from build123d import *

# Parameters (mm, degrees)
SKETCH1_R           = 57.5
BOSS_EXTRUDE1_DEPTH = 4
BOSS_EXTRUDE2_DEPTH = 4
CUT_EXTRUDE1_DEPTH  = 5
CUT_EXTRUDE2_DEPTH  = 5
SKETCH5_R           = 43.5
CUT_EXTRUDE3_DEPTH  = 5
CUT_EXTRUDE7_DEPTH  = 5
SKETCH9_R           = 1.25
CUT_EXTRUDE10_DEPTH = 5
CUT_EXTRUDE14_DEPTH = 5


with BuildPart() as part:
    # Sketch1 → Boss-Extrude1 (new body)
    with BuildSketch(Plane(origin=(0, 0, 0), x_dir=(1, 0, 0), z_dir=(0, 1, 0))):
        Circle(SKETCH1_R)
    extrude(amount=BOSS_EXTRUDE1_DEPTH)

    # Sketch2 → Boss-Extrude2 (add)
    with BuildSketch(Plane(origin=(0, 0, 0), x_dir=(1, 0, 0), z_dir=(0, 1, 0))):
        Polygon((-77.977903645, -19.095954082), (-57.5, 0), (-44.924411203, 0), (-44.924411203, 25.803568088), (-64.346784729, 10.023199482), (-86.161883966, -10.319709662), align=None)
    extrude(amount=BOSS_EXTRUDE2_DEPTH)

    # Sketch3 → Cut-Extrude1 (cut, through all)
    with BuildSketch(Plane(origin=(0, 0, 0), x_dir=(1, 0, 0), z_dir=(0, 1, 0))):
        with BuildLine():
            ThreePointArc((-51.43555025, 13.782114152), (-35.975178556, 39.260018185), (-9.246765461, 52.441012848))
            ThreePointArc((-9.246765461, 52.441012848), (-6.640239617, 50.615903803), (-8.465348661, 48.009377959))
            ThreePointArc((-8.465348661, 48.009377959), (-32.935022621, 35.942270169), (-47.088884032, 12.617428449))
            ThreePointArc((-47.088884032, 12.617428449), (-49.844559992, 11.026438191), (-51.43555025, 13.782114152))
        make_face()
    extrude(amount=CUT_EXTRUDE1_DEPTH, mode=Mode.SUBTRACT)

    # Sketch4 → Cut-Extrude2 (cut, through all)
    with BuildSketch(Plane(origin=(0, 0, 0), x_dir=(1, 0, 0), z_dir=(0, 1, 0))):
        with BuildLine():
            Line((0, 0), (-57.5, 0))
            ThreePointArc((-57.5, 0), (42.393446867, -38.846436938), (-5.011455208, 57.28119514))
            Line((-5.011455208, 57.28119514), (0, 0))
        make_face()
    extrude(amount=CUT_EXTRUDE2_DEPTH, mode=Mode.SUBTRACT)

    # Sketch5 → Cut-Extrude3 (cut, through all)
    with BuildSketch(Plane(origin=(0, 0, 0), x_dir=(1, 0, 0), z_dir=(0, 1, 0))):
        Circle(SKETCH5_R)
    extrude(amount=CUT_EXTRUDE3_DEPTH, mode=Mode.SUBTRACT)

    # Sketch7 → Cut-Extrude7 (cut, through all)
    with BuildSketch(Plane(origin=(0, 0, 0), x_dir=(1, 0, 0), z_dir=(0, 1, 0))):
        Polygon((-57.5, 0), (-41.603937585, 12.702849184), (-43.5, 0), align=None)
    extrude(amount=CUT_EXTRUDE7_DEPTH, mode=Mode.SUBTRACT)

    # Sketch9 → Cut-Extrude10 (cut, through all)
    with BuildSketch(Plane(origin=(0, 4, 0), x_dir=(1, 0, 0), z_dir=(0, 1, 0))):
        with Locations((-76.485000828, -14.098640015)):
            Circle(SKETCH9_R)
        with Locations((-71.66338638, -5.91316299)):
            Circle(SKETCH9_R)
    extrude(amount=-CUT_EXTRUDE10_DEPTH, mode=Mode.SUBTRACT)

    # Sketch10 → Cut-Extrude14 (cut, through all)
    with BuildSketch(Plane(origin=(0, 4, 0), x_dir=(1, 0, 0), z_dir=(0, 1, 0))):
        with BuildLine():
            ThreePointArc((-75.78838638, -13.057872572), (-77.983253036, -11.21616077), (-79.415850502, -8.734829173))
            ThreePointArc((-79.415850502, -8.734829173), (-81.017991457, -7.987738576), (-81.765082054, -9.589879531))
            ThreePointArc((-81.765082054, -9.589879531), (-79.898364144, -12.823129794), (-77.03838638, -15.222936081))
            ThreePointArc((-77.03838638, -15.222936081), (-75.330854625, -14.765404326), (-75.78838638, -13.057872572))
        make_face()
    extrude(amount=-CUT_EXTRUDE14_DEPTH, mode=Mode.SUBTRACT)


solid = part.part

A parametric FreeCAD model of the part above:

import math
import FreeCAD as App
import Part
import Sketcher
from FreeCAD import Vector
Q = App.Units.Quantity

doc = App.newDocument("Part")
params = doc.addObject("Spreadsheet::Sheet", "Params")
for row, (alias, value) in enumerate([
    ("sketch1_diameter", "115 mm"),
    ("pad1_length", "4 mm"),
    ("sketch2_length", "28 mm"),
    ("sketch2_length2", "12 mm"),
    ("pad2_length", "4 mm"),
    ("sketch3_radius", "53.25 mm"),
    ("sketch3_radius2", "2.25 mm"),
    ("sketch4_radius", "57.5 mm"),
    ("sketch5_diameter", "87 mm"),
    ("sketch6_width", "14 mm"),
    ("sketch7_diameter", "2.5 mm"),
    ("sketch8_radius", "8.25 mm"),
    ("sketch8_radius2", "1.25 mm"),
], start=1):
    params.set(f"A{row}", alias)
    params.set(f"B{row}", "=" + value)
    params.setAlias(f"B{row}", alias)

body = doc.addObject("PartDesign::Body", "Body")

# Sketch on XZ plane
sketch1 = body.newObject("Sketcher::SketchObject", "Sketch")
sketch1.AttachmentSupport = (doc.getObject("XZ_Plane"), [""])
sketch1.MapMode = "FlatFace"
sketch1.addGeometry(Part.Circle(Vector(0, 0, 0), Vector(0, 0, 1), 57.5), False)
sketch1.addConstraint([
    Sketcher.Constraint("Coincident", 0, 3, -1, 1),
    Sketcher.Constraint("Diameter", 0, Q("115 mm")),
])
sketch1.setExpression("Constraints[1]", "Params.sketch1_diameter")
pad1 = body.newObject("PartDesign::Pad", "Pad")
pad1.Profile = sketch1
pad1.setExpression("Length", "Params.pad1_length")
pad1.Reversed = True

# Sketch on XZ plane
sketch2 = body.newObject("Sketcher::SketchObject", "Sketch001")
sketch2.AttachmentSupport = (doc.getObject("XZ_Plane"), [""])
sketch2.MapMode = "FlatFace"
sketch2.addGeometry([
    Part.LineSegment(Vector(-77.977904, 19.095954, 0), Vector(-57.5, 0, 0)),  # 0
    Part.LineSegment(Vector(-57.5, 0, 0), Vector(-44.924411, 0, 0)),  # 1
    Part.LineSegment(Vector(-44.924411, 0, 0), Vector(-44.924411, -25.803568, 0)),  # 2
    Part.LineSegment(Vector(-44.924411, -25.803568, 0), Vector(-64.346785, -10.023199, 0)),  # 3
    Part.LineSegment(Vector(-64.346785, -10.023199, 0), Vector(-86.161884, 10.31971, 0)),  # 4
    Part.LineSegment(Vector(-86.161884, 10.31971, 0), Vector(-77.977904, 19.095954, 0)),  # 5
], False)
sketch2.addConstraint([
    Sketcher.Constraint("Coincident", 0, 2, 1, 1),
    Sketcher.Constraint("Coincident", 1, 2, 2, 1),
    Sketcher.Constraint("Coincident", 2, 2, 3, 1),
    Sketcher.Constraint("Coincident", 3, 2, 4, 1),
    Sketcher.Constraint("Coincident", 4, 2, 5, 1),
    Sketcher.Constraint("Coincident", 5, 2, 0, 1),
    Sketcher.Constraint("Horizontal", 1),
    Sketcher.Constraint("Vertical", 2),
    Sketcher.Constraint("PointOnObject", 0, 2, -1),
    Sketcher.Constraint("Parallel", 0, 4),
    Sketcher.Constraint("Perpendicular", 4, 5),
    Sketcher.Constraint("Angle", 0, Q("-43 deg")),
    Sketcher.Constraint("Distance", 0, Q("28 mm")),
    Sketcher.Constraint("Distance", 5, Q("12 mm")),
    Sketcher.Constraint("DistanceX", 0, 2, -1, 1, Q("57.5 mm")),
    Sketcher.Constraint("DistanceX", 1, 1, 1, 2, Q("12.575589 mm")),
    Sketcher.Constraint("DistanceY", 2, 2, 2, 1, Q("25.803568 mm")),
    Sketcher.Constraint("DistanceY", 3, 2, -1, 1, Q("10.023199 mm")),
])
sketch2.setExpression("Constraints[12]", "Params.sketch2_length")
sketch2.setExpression("Constraints[13]", "Params.sketch2_length2")
pad2 = body.newObject("PartDesign::Pad", "Pad001")
pad2.Profile = sketch2
pad2.setExpression("Length", "Params.pad2_length")
pad2.Reversed = True

# Sketch on XZ plane
sketch3 = body.newObject("Sketcher::SketchObject", "Sketch002")
sketch3.AttachmentSupport = (doc.getObject("XZ_Plane"), [""])
sketch3.MapMode = "FlatFace"
sketch3.addGeometry([
    Part.ArcOfCircle(Part.Circle(Vector(0, 0, 0), Vector(0, 0, 1), 53.25), math.radians(-165), math.radians(-100)),
    Part.ArcOfCircle(Part.Circle(Vector(-49.262217, -13.199771, 0), Vector(0, 0, 1), 2.25), math.radians(15), math.radians(195)),
    Part.ArcOfCircle(Part.Circle(Vector(0, 0, 0), Vector(0, 0, 1), 48.75), math.radians(-165), math.radians(-100)),
    Part.ArcOfCircle(Part.Circle(Vector(-8.856057, -50.225195, 0), Vector(0, 0, 1), 2.25), math.radians(-100), math.radians(80)),
], False)
sketch3.addConstraint([
    Sketcher.Constraint("Tangent", 0, 1, 1, 2),
    Sketcher.Constraint("Tangent", 1, 1, 2, 1),
    Sketcher.Constraint("Tangent", 2, 2, 3, 2),
    Sketcher.Constraint("Tangent", 3, 1, 0, 2),
    Sketcher.Constraint("Coincident", 0, 3, -1, 1),
    Sketcher.Constraint("Coincident", 2, 3, -1, 1),
    Sketcher.Constraint("Radius", 0, Q("53.25 mm")),
    Sketcher.Constraint("Radius", 1, Q("2.25 mm")),
    Sketcher.Constraint("DistanceY", 1, 3, -1, 1, Q("13.199771 mm")),
    Sketcher.Constraint("DistanceX", 2, 2, -1, 1, Q("8.465349 mm")),
])
sketch3.setExpression("Constraints[6]", "Params.sketch3_radius")
sketch3.setExpression("Constraints[7]", "Params.sketch3_radius2")
pocket1 = body.newObject("PartDesign::Pocket", "Pocket")
pocket1.Profile = sketch3
pocket1.Type = "ThroughAll"

# Sketch on XZ plane
sketch4 = body.newObject("Sketcher::SketchObject", "Sketch003")
sketch4.AttachmentSupport = (doc.getObject("XZ_Plane"), [""])
sketch4.MapMode = "FlatFace"
sketch4.addGeometry([
    Part.LineSegment(Vector(0, 0, 0), Vector(-57.5, 0, 0)),
    Part.ArcOfCircle(Part.Circle(Vector(0, 0, 0), Vector(0, 0, 1), 57.5), math.radians(-95), math.radians(180)),
    Part.LineSegment(Vector(-5.011455, -57.281195, 0), Vector(0, 0, 0)),
], False)
sketch4.addConstraint([
    Sketcher.Constraint("Coincident", 0, 2, 1, 2),
    Sketcher.Constraint("Coincident", 1, 1, 2, 1),
    Sketcher.Constraint("Coincident", 2, 2, 0, 1),
    Sketcher.Constraint("Horizontal", 0),
    Sketcher.Constraint("Coincident", 1, 3, -1, 1),
    Sketcher.Constraint("Coincident", 2, 2, -1, 1),
    Sketcher.Constraint("Radius", 1, Q("57.5 mm")),
    Sketcher.Constraint("Angle", 2, Q("85 deg")),
])
sketch4.setExpression("Constraints[6]", "Params.sketch4_radius")
pocket2 = body.newObject("PartDesign::Pocket", "Pocket001")
pocket2.Profile = sketch4
pocket2.Type = "ThroughAll"

# Sketch on XZ plane
sketch5 = body.newObject("Sketcher::SketchObject", "Sketch004")
sketch5.AttachmentSupport = (doc.getObject("XZ_Plane"), [""])
sketch5.MapMode = "FlatFace"
sketch5.addGeometry(Part.Circle(Vector(0, 0, 0), Vector(0, 0, 1), 43.5), False)
sketch5.addConstraint([
    Sketcher.Constraint("Coincident", 0, 3, -1, 1),
    Sketcher.Constraint("Diameter", 0, Q("87 mm")),
])
sketch5.setExpression("Constraints[1]", "Params.sketch5_diameter")
pocket3 = body.newObject("PartDesign::Pocket", "Pocket002")
pocket3.Profile = sketch5
pocket3.Type = "ThroughAll"

# Sketch on XZ plane
sketch6 = body.newObject("Sketcher::SketchObject", "Sketch005")
sketch6.AttachmentSupport = (doc.getObject("XZ_Plane"), [""])
sketch6.MapMode = "FlatFace"
sketch6.addGeometry([
    Part.LineSegment(Vector(-41.603938, -12.702849, 0), Vector(-57.5, 0, 0)),
    Part.LineSegment(Vector(-57.5, 0, 0), Vector(-43.5, 0, 0)),
    Part.LineSegment(Vector(-43.5, 0, 0), Vector(-41.603938, -12.702849, 0)),
], False)
sketch6.addConstraint([
    Sketcher.Constraint("Coincident", 0, 2, 1, 1),
    Sketcher.Constraint("Coincident", 1, 2, 2, 1),
    Sketcher.Constraint("Coincident", 2, 2, 0, 1),
    Sketcher.Constraint("Horizontal", 1),
    Sketcher.Constraint("PointOnObject", 0, 2, -1),
    Sketcher.Constraint("DistanceX", 1, 1, 1, 2, Q("14 mm")),
    Sketcher.Constraint("DistanceX", 0, 2, -1, 1, Q("57.5 mm")),
    Sketcher.Constraint("Distance", 0, Q("20.348149 mm")),
    Sketcher.Constraint("DistanceY", 2, 2, -1, 1, Q("12.702849 mm")),
])
sketch6.setExpression("Constraints[5]", "Params.sketch6_width")
pocket4 = body.newObject("PartDesign::Pocket", "Pocket003")
pocket4.Profile = sketch6
pocket4.Type = "ThroughAll"

# Sketch on XZ plane
sketch7 = body.newObject("Sketcher::SketchObject", "Sketch006")
sketch7.AttachmentSupport = (doc.getObject("XZ_Plane"), [""])
sketch7.MapMode = "FlatFace"
sketch7.AttachmentOffset = App.Placement(Vector(0, 0, -4), App.Rotation())
sketch7.addGeometry([
    Part.Circle(Vector(-76.485001, 14.09864, 0), Vector(0, 0, 1), 1.25),
    Part.Circle(Vector(-71.663386, 5.913163, 0), Vector(0, 0, 1), 1.25),
], False)
sketch7.addConstraint([
    Sketcher.Constraint("Equal", 0, 1),
    Sketcher.Constraint("Diameter", 0, Q("2.5 mm")),
    Sketcher.Constraint("DistanceX", 0, 3, -1, 1, Q("76.485001 mm")),
    Sketcher.Constraint("DistanceY", -1, 1, 0, 3, Q("14.09864 mm")),
    Sketcher.Constraint("DistanceX", 1, 3, -1, 1, Q("71.663386 mm")),
    Sketcher.Constraint("DistanceY", -1, 1, 1, 3, Q("5.913163 mm")),
])
sketch7.setExpression("Constraints[1]", "Params.sketch7_diameter")
pocket5 = body.newObject("PartDesign::Pocket", "Pocket004")
pocket5.Profile = sketch7
pocket5.Type = "ThroughAll"
pocket5.Reversed = True

# Sketch on XZ plane
sketch8 = body.newObject("Sketcher::SketchObject", "Sketch007")
sketch8.AttachmentSupport = (doc.getObject("XZ_Plane"), [""])
sketch8.MapMode = "FlatFace"
sketch8.AttachmentOffset = App.Placement(Vector(0, 0, -4), App.Rotation())
sketch8.addGeometry([
    Part.ArcOfCircle(Part.Circle(Vector(-71.663386, 5.913163, 0), Vector(0, 0, 1), 8.25), math.radians(120), math.radians(160)),
    Part.ArcOfCircle(Part.Circle(Vector(-80.590466, 9.162354, 0), Vector(0, 0, 1), 1.25), math.radians(160), math.radians(340)),
    Part.ArcOfCircle(Part.Circle(Vector(-71.663386, 5.913163, 0), Vector(0, 0, 1), 10.75), math.radians(120), math.radians(160)),
    Part.ArcOfCircle(Part.Circle(Vector(-76.413386, 14.140404, 0), Vector(0, 0, 1), 1.25), math.radians(-60), math.radians(120)),
], False)
sketch8.addConstraint([
    Sketcher.Constraint("Tangent", 0, 2, 1, 2),
    Sketcher.Constraint("Tangent", 1, 1, 2, 2),
    Sketcher.Constraint("Tangent", 2, 1, 3, 2),
    Sketcher.Constraint("Tangent", 3, 1, 0, 1),
    Sketcher.Constraint("Coincident", 2, 3, 0, 3),
    Sketcher.Constraint("Radius", 0, Q("8.25 mm")),
    Sketcher.Constraint("Radius", 1, Q("1.25 mm")),
    Sketcher.Constraint("DistanceX", 3, 3, 2, 3, Q("4.75 mm")),
    Sketcher.Constraint("DistanceX", 0, 2, -1, 1, Q("79.415851 mm")),
    Sketcher.Constraint("DistanceY", -1, 1, 0, 2, Q("8.734829 mm")),
    Sketcher.Constraint("DistanceY", -1, 1, 1, 1, Q("9.58988 mm")),
])
sketch8.setExpression("Constraints[5]", "Params.sketch8_radius")
sketch8.setExpression("Constraints[6]", "Params.sketch8_radius2")
pocket6 = body.newObject("PartDesign::Pocket", "Pocket005")
pocket6.Profile = sketch8
pocket6.Type = "ThroughAll"
pocket6.Reversed = True

doc.recompute()
